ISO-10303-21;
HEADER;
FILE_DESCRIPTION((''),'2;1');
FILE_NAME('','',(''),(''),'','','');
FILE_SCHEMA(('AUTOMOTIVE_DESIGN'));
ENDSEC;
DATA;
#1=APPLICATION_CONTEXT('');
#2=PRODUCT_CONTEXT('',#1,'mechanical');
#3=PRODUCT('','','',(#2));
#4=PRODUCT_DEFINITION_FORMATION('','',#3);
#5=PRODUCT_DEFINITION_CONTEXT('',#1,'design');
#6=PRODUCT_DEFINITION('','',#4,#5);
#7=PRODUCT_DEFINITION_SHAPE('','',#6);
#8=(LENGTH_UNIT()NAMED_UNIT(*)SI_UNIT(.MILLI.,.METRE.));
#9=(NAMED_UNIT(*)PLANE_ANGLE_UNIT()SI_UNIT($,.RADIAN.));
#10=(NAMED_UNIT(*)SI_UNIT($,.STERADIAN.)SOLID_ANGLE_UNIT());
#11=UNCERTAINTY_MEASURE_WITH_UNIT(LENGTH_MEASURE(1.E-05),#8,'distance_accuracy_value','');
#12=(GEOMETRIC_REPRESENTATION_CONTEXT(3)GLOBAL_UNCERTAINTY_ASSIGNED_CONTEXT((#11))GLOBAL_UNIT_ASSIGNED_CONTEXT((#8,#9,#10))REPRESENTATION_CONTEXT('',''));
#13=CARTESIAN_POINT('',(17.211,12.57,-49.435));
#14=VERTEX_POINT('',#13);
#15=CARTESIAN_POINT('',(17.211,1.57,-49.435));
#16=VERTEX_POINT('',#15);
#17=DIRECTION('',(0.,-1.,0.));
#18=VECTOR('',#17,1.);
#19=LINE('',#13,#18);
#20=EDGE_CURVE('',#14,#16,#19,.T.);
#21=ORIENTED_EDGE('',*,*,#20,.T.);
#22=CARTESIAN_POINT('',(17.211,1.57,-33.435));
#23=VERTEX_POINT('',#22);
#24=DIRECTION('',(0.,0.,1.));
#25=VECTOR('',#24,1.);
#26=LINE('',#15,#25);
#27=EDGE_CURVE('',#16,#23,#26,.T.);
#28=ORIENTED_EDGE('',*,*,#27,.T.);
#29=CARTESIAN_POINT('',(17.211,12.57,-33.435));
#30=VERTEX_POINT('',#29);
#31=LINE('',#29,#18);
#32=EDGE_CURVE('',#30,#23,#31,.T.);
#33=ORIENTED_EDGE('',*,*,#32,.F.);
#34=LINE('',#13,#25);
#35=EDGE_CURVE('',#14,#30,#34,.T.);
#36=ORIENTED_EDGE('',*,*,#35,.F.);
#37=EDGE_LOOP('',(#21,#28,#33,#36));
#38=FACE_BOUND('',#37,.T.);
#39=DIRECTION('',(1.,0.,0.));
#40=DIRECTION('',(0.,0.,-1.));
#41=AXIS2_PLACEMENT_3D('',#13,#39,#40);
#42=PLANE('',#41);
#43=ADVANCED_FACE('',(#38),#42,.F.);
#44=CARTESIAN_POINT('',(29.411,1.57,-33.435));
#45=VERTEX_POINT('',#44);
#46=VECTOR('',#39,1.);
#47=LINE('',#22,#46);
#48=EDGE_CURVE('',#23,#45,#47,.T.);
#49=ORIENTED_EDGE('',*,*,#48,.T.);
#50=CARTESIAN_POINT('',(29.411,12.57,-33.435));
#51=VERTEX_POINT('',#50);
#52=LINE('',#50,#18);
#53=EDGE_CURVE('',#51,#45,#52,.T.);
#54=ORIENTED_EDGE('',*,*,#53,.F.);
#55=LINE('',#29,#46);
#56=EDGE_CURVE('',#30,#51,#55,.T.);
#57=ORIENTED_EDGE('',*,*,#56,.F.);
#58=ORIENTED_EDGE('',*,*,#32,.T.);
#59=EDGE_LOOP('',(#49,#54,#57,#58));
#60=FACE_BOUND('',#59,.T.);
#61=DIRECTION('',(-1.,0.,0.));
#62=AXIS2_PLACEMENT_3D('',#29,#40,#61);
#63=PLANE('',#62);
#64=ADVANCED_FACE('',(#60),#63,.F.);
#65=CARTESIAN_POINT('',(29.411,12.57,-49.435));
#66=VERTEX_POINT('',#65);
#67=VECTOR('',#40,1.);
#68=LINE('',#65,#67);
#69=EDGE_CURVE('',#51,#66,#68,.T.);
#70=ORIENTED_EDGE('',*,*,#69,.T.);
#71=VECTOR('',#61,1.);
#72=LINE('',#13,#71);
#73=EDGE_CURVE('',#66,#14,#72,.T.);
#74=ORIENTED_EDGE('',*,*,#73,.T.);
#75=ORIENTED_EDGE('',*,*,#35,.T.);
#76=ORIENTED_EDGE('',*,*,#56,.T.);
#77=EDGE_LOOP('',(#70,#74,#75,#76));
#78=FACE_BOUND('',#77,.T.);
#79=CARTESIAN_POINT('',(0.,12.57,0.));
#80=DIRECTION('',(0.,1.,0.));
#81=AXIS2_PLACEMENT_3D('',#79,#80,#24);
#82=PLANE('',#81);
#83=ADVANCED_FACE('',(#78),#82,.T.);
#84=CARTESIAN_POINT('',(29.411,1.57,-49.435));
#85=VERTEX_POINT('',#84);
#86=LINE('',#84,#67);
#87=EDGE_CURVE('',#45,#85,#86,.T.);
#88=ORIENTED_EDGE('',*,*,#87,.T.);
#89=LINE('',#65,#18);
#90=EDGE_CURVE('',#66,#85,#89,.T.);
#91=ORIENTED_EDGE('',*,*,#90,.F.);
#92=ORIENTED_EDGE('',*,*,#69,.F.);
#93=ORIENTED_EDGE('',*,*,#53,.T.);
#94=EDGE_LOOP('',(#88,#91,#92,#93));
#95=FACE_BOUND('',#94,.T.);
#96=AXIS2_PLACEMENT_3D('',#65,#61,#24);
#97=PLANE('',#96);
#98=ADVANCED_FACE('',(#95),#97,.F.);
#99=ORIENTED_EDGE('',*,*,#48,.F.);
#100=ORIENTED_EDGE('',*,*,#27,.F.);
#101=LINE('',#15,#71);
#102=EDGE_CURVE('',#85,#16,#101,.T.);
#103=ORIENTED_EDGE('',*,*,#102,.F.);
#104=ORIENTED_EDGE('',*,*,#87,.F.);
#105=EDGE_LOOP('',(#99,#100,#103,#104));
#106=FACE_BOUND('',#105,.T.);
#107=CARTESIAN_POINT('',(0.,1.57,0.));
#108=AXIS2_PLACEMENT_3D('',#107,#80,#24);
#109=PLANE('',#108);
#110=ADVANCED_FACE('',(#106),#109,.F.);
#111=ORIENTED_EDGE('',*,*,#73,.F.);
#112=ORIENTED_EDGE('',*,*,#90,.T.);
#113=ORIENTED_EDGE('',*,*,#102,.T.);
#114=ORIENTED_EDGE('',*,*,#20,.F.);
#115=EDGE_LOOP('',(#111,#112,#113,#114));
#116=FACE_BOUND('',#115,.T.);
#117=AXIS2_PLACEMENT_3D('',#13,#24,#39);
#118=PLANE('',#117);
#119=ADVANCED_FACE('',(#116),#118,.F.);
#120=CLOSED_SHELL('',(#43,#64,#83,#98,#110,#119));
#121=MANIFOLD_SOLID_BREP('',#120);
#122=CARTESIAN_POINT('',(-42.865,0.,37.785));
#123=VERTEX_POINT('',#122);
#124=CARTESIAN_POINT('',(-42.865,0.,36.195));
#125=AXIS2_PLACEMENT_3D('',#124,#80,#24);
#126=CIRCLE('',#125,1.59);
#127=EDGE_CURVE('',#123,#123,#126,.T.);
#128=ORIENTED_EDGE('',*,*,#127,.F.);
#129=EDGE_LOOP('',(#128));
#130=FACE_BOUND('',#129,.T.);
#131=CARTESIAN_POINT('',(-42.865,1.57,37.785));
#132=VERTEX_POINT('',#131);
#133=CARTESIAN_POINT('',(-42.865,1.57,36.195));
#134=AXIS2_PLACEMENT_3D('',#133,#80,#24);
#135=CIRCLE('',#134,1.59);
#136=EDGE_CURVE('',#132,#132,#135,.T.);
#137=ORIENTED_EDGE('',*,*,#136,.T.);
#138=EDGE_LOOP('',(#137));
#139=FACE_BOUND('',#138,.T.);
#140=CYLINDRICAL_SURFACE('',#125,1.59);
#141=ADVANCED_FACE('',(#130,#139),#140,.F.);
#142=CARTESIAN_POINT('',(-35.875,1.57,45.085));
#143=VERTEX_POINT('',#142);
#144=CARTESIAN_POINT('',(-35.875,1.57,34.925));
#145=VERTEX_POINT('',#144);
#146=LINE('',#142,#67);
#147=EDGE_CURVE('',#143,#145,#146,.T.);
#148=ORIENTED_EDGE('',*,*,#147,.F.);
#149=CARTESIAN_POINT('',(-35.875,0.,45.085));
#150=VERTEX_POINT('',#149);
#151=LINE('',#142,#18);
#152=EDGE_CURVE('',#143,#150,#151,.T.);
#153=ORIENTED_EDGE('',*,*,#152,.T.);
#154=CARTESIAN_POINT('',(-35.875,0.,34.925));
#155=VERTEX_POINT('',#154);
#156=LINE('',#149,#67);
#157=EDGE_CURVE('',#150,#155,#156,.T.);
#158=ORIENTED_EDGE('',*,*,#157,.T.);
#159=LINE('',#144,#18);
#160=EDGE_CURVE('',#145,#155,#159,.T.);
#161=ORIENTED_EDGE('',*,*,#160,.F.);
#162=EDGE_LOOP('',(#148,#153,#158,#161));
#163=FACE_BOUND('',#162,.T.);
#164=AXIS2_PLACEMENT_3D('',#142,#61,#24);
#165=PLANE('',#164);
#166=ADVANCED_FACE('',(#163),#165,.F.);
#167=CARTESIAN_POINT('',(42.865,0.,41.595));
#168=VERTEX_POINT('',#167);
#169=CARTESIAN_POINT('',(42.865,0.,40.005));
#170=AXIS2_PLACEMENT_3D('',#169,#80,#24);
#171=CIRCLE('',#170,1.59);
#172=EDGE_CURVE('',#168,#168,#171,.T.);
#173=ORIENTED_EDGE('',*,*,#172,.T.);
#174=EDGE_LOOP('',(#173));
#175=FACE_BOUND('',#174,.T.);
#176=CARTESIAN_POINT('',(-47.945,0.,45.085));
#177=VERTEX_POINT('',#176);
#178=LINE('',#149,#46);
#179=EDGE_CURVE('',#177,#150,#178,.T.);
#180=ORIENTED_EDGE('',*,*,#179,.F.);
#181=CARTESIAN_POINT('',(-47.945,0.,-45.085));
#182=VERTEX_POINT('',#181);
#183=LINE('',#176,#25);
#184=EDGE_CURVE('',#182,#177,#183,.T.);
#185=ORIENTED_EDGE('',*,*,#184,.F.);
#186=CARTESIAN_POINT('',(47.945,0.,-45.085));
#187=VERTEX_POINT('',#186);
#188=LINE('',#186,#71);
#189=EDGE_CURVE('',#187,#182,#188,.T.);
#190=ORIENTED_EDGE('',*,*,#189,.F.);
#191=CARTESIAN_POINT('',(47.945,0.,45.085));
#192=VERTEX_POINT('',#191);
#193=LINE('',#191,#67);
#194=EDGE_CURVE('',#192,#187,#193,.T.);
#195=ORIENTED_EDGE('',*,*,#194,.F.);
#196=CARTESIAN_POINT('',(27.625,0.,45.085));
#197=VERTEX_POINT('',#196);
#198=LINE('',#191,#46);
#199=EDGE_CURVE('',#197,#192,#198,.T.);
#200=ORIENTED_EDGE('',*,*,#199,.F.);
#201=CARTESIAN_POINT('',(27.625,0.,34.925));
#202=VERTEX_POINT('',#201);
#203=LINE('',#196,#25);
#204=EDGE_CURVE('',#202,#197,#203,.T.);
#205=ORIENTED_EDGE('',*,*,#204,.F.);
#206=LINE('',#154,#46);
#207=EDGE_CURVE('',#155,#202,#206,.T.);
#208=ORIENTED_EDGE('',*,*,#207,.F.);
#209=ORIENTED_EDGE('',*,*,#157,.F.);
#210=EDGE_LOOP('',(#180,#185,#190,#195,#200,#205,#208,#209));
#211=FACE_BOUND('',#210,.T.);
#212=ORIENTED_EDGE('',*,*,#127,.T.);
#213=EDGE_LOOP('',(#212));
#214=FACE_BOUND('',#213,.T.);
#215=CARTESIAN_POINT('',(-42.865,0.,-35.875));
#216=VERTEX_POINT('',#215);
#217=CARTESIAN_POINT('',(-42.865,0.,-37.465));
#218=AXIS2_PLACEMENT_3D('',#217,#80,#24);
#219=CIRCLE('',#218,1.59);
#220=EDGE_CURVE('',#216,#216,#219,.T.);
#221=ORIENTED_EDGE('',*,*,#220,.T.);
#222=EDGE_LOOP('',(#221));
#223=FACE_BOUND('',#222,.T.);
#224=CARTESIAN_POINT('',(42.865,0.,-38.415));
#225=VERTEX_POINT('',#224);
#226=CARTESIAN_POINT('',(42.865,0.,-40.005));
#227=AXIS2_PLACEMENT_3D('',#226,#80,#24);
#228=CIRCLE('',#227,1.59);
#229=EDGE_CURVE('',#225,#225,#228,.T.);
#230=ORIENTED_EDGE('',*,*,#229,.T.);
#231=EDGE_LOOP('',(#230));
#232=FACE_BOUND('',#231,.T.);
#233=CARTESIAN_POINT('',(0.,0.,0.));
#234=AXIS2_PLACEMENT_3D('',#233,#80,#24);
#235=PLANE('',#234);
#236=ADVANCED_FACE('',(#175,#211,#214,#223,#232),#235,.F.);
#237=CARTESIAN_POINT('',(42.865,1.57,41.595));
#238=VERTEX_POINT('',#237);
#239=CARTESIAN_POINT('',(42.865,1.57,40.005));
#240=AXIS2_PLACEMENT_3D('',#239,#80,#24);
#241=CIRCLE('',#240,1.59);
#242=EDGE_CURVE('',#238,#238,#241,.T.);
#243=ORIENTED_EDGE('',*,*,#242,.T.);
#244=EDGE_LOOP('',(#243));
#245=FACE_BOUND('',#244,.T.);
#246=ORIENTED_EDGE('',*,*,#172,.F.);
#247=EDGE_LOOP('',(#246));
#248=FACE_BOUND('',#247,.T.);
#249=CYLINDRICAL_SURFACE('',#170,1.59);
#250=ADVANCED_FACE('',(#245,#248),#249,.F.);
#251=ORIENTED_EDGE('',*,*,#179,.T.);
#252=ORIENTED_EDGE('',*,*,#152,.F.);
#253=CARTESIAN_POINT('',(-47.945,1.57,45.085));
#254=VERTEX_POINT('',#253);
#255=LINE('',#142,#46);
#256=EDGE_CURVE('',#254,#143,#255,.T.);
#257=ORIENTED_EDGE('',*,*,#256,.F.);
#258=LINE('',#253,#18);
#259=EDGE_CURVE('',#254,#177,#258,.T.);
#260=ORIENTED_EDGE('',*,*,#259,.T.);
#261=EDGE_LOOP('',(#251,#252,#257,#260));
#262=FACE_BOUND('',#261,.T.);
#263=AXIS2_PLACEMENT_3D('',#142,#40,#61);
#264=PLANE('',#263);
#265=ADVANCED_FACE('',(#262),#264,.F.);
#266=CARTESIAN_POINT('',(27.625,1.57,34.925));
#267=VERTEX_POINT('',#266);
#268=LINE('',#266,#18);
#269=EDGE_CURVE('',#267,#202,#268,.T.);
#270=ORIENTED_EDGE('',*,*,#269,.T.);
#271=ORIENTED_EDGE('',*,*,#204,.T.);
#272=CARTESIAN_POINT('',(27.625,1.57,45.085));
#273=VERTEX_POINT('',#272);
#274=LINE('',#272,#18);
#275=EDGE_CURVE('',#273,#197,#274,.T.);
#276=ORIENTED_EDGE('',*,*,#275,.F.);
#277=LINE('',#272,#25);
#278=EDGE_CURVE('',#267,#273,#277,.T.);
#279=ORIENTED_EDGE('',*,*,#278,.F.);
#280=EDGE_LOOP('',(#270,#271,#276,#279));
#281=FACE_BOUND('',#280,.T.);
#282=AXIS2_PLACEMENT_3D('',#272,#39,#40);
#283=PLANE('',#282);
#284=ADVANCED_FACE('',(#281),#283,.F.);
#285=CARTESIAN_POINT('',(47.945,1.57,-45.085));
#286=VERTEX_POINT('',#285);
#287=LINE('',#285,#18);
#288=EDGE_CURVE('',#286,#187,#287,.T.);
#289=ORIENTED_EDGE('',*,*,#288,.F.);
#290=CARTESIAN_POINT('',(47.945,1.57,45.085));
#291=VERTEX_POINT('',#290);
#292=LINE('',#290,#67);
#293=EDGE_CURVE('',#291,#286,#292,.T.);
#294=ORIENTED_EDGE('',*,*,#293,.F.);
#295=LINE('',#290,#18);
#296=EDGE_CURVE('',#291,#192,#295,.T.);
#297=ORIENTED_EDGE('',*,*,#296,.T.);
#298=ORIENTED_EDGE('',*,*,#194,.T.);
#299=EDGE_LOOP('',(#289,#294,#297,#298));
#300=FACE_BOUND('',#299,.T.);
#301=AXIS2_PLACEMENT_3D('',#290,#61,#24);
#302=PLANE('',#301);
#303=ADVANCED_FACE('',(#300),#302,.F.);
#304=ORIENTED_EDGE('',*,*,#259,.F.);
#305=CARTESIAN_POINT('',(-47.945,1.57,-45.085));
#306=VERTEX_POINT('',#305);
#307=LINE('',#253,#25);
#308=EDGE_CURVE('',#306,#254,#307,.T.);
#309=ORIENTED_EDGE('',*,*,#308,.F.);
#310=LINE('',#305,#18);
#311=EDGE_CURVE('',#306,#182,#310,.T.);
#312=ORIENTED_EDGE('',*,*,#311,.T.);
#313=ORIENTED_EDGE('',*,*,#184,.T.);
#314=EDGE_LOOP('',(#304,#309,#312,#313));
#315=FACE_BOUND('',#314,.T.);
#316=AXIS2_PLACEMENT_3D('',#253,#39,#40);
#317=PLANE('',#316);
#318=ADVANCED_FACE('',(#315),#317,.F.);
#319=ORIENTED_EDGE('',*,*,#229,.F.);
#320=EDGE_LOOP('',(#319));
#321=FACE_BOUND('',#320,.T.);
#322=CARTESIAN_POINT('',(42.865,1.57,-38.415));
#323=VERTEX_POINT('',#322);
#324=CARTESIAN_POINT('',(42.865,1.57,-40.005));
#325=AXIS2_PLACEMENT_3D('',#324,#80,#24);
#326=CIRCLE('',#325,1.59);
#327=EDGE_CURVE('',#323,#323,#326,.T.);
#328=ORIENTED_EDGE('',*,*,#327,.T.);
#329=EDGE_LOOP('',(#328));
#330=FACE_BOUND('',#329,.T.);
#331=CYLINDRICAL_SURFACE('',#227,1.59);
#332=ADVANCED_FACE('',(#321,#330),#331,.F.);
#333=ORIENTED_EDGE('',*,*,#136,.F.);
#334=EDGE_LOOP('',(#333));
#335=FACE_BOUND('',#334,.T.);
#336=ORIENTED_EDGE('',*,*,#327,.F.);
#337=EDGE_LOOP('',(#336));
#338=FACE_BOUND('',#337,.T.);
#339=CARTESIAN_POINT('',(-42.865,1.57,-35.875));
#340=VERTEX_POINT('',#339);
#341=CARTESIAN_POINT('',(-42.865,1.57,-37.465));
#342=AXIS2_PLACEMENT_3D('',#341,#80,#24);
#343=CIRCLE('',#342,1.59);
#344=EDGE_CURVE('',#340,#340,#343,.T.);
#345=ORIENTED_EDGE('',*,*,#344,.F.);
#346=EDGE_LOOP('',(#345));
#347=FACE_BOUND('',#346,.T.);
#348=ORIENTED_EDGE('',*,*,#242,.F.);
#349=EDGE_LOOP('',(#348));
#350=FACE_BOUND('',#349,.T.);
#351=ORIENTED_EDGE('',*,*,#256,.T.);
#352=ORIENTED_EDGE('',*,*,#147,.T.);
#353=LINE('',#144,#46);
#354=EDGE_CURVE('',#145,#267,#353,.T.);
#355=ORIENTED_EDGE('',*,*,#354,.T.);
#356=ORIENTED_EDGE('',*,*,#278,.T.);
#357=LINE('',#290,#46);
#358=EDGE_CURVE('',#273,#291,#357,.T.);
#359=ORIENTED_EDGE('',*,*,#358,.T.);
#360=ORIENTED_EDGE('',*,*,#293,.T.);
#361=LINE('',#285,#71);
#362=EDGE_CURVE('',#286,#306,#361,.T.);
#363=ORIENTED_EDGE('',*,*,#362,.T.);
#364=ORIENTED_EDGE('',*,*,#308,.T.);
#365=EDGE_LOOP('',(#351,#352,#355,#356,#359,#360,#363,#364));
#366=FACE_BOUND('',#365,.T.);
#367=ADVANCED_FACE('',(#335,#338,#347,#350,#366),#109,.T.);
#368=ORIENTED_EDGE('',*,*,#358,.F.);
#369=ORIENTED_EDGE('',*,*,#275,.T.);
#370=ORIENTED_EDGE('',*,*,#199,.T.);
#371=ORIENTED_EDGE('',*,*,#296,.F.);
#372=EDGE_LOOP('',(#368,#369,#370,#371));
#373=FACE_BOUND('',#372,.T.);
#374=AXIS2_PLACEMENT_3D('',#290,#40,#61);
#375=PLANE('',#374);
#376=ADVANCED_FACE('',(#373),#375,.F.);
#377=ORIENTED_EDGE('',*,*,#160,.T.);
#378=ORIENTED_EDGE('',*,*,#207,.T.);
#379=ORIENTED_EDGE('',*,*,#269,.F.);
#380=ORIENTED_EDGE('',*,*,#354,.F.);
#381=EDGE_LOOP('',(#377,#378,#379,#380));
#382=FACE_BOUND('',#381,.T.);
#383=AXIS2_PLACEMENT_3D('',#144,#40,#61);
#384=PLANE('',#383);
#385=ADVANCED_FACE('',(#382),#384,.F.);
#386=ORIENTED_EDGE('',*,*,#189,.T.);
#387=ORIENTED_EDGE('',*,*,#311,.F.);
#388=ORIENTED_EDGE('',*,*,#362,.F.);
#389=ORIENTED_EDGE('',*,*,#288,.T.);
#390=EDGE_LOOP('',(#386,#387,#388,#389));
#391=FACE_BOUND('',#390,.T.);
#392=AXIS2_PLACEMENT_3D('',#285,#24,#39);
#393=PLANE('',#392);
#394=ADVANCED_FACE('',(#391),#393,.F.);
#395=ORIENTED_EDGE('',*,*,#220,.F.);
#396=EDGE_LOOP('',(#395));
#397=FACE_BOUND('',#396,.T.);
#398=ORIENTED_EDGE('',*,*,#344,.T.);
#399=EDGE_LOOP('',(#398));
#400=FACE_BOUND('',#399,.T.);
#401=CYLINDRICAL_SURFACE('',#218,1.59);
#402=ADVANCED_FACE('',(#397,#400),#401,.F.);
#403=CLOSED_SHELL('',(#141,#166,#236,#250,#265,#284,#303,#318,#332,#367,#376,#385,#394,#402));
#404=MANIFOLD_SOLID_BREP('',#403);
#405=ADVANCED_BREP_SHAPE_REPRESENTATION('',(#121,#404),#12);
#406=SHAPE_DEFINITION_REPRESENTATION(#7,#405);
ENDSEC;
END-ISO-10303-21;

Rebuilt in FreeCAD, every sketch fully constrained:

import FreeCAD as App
import Part
import Sketcher

V = App.Vector
Q = App.Units.Quantity

doc = App.newDocument("Part")
params = doc.addObject("Spreadsheet::Sheet", "Params")
for row, (alias, value) in enumerate([
    ("sketch1_width", "2.5 in"),
    ("sketch1_width2", "0.8 in"),
    ("sketch1_height", "0.4 in"),
    ("sketch1_height2", "3.55 in"),
    ("pad1_length", "1.57 mm"),
    ("pad2_length", "11 mm"),
], start=1):
    params.set(f"A{row}", alias)
    params.set(f"B{row}", "=" + value)
    params.setAlias(f"B{row}", alias)

body = doc.addObject("PartDesign::Body", "Body")

# Sketch on XZ plane
sketch1 = body.newObject("Sketcher::SketchObject", "Sketch")
sketch1.AttachmentSupport = (doc.getObject("XZ_Plane"), [""])
sketch1.MapMode = "FlatFace"
sketch1.addGeometry(Part.LineSegment(V(-47.945, 45.085, 0), V(-35.875, 45.085, 0)), False)
sketch1.addGeometry(Part.LineSegment(V(-35.875, 45.085, 0), V(-35.875, 34.925, 0)), False)
sketch1.addGeometry(Part.LineSegment(V(-35.875, 34.925, 0), V(27.625, 34.925, 0)), False)
sketch1.addGeometry(Part.LineSegment(V(27.625, 34.925, 0), V(27.625, 45.085, 0)), False)
sketch1.addGeometry(Part.LineSegment(V(27.625, 45.085, 0), V(47.945, 45.085, 0)), False)
sketch1.addGeometry(Part.LineSegment(V(47.945, 45.085, 0), V(47.945, -45.085, 0)), False)
sketch1.addGeometry(Part.LineSegment(V(47.945, -45.085, 0), V(-47.945, -45.085, 0)), False)
sketch1.addGeometry(Part.LineSegment(V(-47.945, -45.085, 0), V(-47.945, 45.085, 0)), False)
sketch1.addConstraint(Sketcher.Constraint("Coincident", 0, 2, 1, 1))
sketch1.addConstraint(Sketcher.Constraint("Coincident", 1, 2, 2, 1))
sketch1.addConstraint(Sketcher.Constraint("Coincident", 2, 2, 3, 1))
sketch1.addConstraint(Sketcher.Constraint("Coincident", 3, 2, 4, 1))
sketch1.addConstraint(Sketcher.Constraint("Coincident", 4, 2, 5, 1))
sketch1.addConstraint(Sketcher.Constraint("Coincident", 5, 2, 6, 1))
sketch1.addConstraint(Sketcher.Constraint("Coincident", 6, 2, 7, 1))
sketch1.addConstraint(Sketcher.Constraint("Coincident", 7, 2, 0, 1))
sketch1.addConstraint(Sketcher.Constraint("Horizontal", 0))
sketch1.addConstraint(Sketcher.Constraint("Vertical", 1))
sketch1.addConstraint(Sketcher.Constraint("Horizontal", 2))
sketch1.addConstraint(Sketcher.Constraint("Vertical", 3))
sketch1.addConstraint(Sketcher.Constraint("Horizontal", 4))
sketch1.addConstraint(Sketcher.Constraint("Vertical", 5))
sketch1.addConstraint(Sketcher.Constraint("Horizontal", 6))
sketch1.addConstraint(Sketcher.Constraint("Vertical", 7))
sketch1.addConstraint(Sketcher.Constraint("Symmetric", 4, 2, 6, 2, -1, 1))
sketch1.addConstraint(Sketcher.Constraint("Horizontal", 0, 2, 3, 2))
sketch1.addConstraint(Sketcher.Constraint("DistanceX", 2, 1, 2, 2, Q("2.5 in")))
sketch1.addConstraint(Sketcher.Constraint("DistanceX", 4, 1, 4, 2, Q("0.8 in")))
sketch1.addConstraint(Sketcher.Constraint("DistanceY", 1, 2, 1, 1, Q("0.4 in")))
sketch1.addConstraint(Sketcher.Constraint("DistanceY", 5, 2, 5, 1, Q("3.55 in")))
sketch1.addConstraint(Sketcher.Constraint("DistanceX", 0, 1, 0, 2, Q("12.07 mm")))
sketch1.setExpression("Constraints[18]", "Params.sketch1_width")
sketch1.setExpression("Constraints[19]", "Params.sketch1_width2")
sketch1.setExpression("Constraints[20]", "Params.sketch1_height")
sketch1.setExpression("Constraints[21]", "Params.sketch1_height2")
pad1 = body.newObject("PartDesign::Pad", "Pad")
pad1.Profile = sketch1
pad1.setExpression("Length", "Params.pad1_length")
pad1.Reversed = True

# Sketch on XZ plane
sketch2 = body.newObject("Sketcher::SketchObject", "Sketch001")
sketch2.AttachmentSupport = (doc.getObject("XZ_Plane"), [""])
sketch2.MapMode = "FlatFace"
sketch2.AttachmentOffset = App.Placement(V(0, 0, -1.57), App.Rotation())
sketch2.addGeometry(Part.Circle(V(42.865, 40.005, 0), V(0, 0, 1), 1.59), False)
sketch2.addGeometry(Part.Circle(V(-42.865, 36.195, 0), V(0, 0, 1), 1.59), False)
sketch2.addGeometry(Part.Circle(V(-42.865, -37.465, 0), V(0, 0, 1), 1.59), False)
sketch2.addGeometry(Part.Circle(V(42.865, -40.005, 0), V(0, 0, 1), 1.59), False)
sketch2.addConstraint(Sketcher.Constraint("Equal", 0, 1))
sketch2.addConstraint(Sketcher.Constraint("Equal", 1, 2))
sketch2.addConstraint(Sketcher.Constraint("Equal", 2, 3))
sketch2.addConstraint(Sketcher.Constraint("Symmetric", 0, 3, 3, 3, -1))
sketch2.addConstraint(Sketcher.Constraint("Vertical", 1, 3, 2, 3))
sketch2.addConstraint(Sketcher.Constraint("DistanceY", 3, 3, 1, 3, Q("3 in")))
sketch2.addConstraint(Sketcher.Constraint("DistanceY", 2, 3, 1, 3, Q("2.9 in")))
sketch2.addConstraint(Sketcher.Constraint("Diameter", 0, Q("3.18 mm")))
sketch2.addConstraint(Sketcher.Constraint("DistanceY", 1, 3, 0, 3, Q("0.15 in")))
sketch2.addConstraint(Sketcher.Constraint("DistanceX", -1, 1, 0, 3, Q("42.865 mm")))
sketch2.addConstraint(Sketcher.Constraint("DistanceX", 1, 3, -1, 1, Q("42.865 mm")))
pocket1 = body.newObject("PartDesign::Pocket", "Pocket")
pocket1.Profile = sketch2
pocket1.Type = "ThroughAll"
pocket1.Reversed = True
body2 = doc.addObject("PartDesign::Body", "Body001")

# Sketch on XZ plane
sketch3 = body2.newObject("Sketcher::SketchObject", "Sketch002")
sketch3.AttachmentSupport = (doc.getObject("XZ_Plane001"), [""])
sketch3.MapMode = "FlatFace"
sketch3.AttachmentOffset = App.Placement(V(0, 0, -1.57), App.Rotation())
sketch3.addGeometry(Part.LineSegment(V(17.211, -49.435, 0), V(17.211, -33.435, 0)), False)
sketch3.addGeometry(Part.LineSegment(V(17.211, -33.435, 0), V(29.411, -33.435, 0)), False)
sketch3.addGeometry(Part.LineSegment(V(29.411, -33.435, 0), V(29.411, -49.435, 0)), False)
sketch3.addGeometry(Part.LineSegment(V(29.411, -49.435, 0), V(17.211, -49.435, 0)), False)
sketch3.addConstraint(Sketcher.Constraint("Coincident", 0, 2, 1, 1))
sketch3.addConstraint(Sketcher.Constraint("Coincident", 1, 2, 2, 1))
sketch3.addConstraint(Sketcher.Constraint("Coincident", 2, 2, 3, 1))
sketch3.addConstraint(Sketcher.Constraint("Coincident", 3, 2, 0, 1))
sketch3.addConstraint(Sketcher.Constraint("Vertical", 0))
sketch3.addConstraint(Sketcher.Constraint("Horizontal", 1))
sketch3.addConstraint(Sketcher.Constraint("Vertical", 2))
sketch3.addConstraint(Sketcher.Constraint("Horizontal", 3))
sketch3.addConstraint(Sketcher.Constraint("DistanceX", 1, 1, 1, 2, Q("12.2 mm")))
sketch3.addConstraint(Sketcher.Constraint("DistanceY", 0, 1, 0, 2, Q("16 mm")))
sketch3.addConstraint(Sketcher.Constraint("DistanceX", -1, 1, 0, 2, Q("17.211 mm")))
sketch3.addConstraint(Sketcher.Constraint("DistanceY", 0, 2, -1, 1, Q("33.435 mm")))
pad2 = body2.newObject("PartDesign::Pad", "Pad001")
pad2.Profile = sketch3
pad2.setExpression("Length", "Params.pad2_length")
pad2.Reversed = True

doc.recompute()
